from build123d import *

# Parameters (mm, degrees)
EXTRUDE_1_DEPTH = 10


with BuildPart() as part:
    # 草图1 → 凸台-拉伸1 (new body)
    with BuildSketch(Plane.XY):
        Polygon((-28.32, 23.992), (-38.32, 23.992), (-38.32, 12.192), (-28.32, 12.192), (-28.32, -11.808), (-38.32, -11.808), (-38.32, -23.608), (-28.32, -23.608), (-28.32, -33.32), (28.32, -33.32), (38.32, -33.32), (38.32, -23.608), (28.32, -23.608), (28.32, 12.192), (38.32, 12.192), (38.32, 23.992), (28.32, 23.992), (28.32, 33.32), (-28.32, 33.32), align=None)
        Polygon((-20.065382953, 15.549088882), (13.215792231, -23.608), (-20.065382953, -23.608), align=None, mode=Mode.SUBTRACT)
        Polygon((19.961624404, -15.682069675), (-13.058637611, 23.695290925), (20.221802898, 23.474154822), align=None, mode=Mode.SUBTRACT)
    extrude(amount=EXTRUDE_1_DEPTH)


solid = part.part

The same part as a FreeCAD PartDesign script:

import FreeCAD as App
import Part
import Sketcher


def add_polygon(sketch, points):
    """Adds a closed chain of lines whose ends are joined by coincident constraints."""
    first, n = sketch.GeometryCount, len(points)
    for a, b in zip(points, points[1:] + points[:1]):
        sketch.addGeometry(Part.LineSegment(App.Vector(*a, 0), App.Vector(*b, 0)), False)
    for i in range(n):
        sketch.addConstraint(Sketcher.Constraint("Coincident", first + i, 2, first + (i + 1) % n, 1))

doc = App.newDocument("Part")
body = doc.addObject("PartDesign::Body", "Body")

# Sketch on XY plane
sketch1 = body.newObject("Sketcher::SketchObject", "Sketch")
sketch1.AttachmentSupport = (doc.getObject("XY_Plane"), [""])
sketch1.MapMode = "FlatFace"
add_polygon(sketch1, [(-28, 24), (-38, 24), (-38, 12), (-28, 12), (-28, -12), (-38, -12), (-38, -24), (-28, -24), (-28, -33), (38, -33), (38, -24), (28, -24), (28, 12), (38, 12), (38, 24), (28, 24), (28, 33), (-28, 33)])  # lines 0-17
add_polygon(sketch1, [(-20, -24), (-20, 16), (13, -24)])  # lines 18-20
add_polygon(sketch1, [(20, 23), (20, -16), (-13, 24)])  # lines 21-23
sketch1.addConstraint([
    Sketcher.Constraint("Horizontal", 0),
    Sketcher.Constraint("Vertical", 1),
    Sketcher.Constraint("Horizontal", 2),
    Sketcher.Constraint("Vertical", 3),
    Sketcher.Constraint("Horizontal", 4),
    Sketcher.Constraint("Vertical", 5),
    Sketcher.Constraint("Horizontal", 6),
    Sketcher.Constraint("Vertical", 7),
    Sketcher.Constraint("Horizontal", 8),
    Sketcher.Constraint("Vertical", 9),
    Sketcher.Constraint("Horizontal", 10),
    Sketcher.Constraint("Vertical", 11),
    Sketcher.Constraint("Horizontal", 12),
    Sketcher.Constraint("Vertical", 13),
    Sketcher.Constraint("Horizontal", 14),
    Sketcher.Constraint("Vertical", 15),
    Sketcher.Constraint("Horizontal", 16),
    Sketcher.Constraint("Vertical", 17),
    Sketcher.Constraint("Vertical", 18),
    Sketcher.Constraint("Horizontal", 20),
    Sketcher.Constraint("Symmetric", 7, 2, 15, 2, -1, 1),
    Sketcher.Constraint("Symmetric", 5, 2, 9, 2, -2),
    Sketcher.Constraint("Symmetric", 2, 2, 11, 2, -2),
    Sketcher.Constraint("Symmetric", 0, 2, 13, 2, -2),
    Sketcher.Constraint("Perpendicular", 21, 23),
    Sketcher.Constraint("Horizontal", 10, 2, 19, 2),
    Sketcher.Constraint("Vertical", 1, 2, 4, 2),
    Sketcher.Constraint("Vertical", 3, 2, 6, 2),
    Sketcher.Constraint("Vertical", 7, 2, 16, 2),
    Sketcher.Constraint("Equal", 1, 5),
    Sketcher.Constraint("Equal", 19, 22),
    Sketcher.Constraint("DistanceX", 0, 2, 0, 1, 10.0),
    Sketcher.Constraint("DistanceY", 3, 2, 3, 1, 24.0),
    Sketcher.Constraint("DistanceY", 1, 2, 1, 1, 11.8),
    Sketcher.Constraint("DistanceX", 8, 1, 8, 2, 66.64),
    Sketcher.Constraint("DistanceY", 7, 2, 7, 1, 9.712),
    Sketcher.Constraint("DistanceY", 15, 1, 15, 2, 9.328),
    Sketcher.Constraint("DistanceY", 18, 1, 18, 2, 39.157089),
    Sketcher.Constraint("Distance", 21, 39.157089),
    Sketcher.Constraint("DistanceX", 20, 2, 20, 1, 33.281175),
    Sketcher.Constraint("DistanceY", 21, 2, -1, 1, 15.68207),
    Sketcher.Constraint("DistanceY", -1, 1, 22, 2, 23.695291),
    Sketcher.Constraint("DistanceX", 18, 2, -1, 1, 20.065383),
    Sketcher.Constraint("DistanceX", -1, 1, 21, 2, 19.961624),
])
pad1 = body.newObject("PartDesign::Pad", "Pad")
pad1.Profile = sketch1
pad1.Length = 10

doc.recompute()
